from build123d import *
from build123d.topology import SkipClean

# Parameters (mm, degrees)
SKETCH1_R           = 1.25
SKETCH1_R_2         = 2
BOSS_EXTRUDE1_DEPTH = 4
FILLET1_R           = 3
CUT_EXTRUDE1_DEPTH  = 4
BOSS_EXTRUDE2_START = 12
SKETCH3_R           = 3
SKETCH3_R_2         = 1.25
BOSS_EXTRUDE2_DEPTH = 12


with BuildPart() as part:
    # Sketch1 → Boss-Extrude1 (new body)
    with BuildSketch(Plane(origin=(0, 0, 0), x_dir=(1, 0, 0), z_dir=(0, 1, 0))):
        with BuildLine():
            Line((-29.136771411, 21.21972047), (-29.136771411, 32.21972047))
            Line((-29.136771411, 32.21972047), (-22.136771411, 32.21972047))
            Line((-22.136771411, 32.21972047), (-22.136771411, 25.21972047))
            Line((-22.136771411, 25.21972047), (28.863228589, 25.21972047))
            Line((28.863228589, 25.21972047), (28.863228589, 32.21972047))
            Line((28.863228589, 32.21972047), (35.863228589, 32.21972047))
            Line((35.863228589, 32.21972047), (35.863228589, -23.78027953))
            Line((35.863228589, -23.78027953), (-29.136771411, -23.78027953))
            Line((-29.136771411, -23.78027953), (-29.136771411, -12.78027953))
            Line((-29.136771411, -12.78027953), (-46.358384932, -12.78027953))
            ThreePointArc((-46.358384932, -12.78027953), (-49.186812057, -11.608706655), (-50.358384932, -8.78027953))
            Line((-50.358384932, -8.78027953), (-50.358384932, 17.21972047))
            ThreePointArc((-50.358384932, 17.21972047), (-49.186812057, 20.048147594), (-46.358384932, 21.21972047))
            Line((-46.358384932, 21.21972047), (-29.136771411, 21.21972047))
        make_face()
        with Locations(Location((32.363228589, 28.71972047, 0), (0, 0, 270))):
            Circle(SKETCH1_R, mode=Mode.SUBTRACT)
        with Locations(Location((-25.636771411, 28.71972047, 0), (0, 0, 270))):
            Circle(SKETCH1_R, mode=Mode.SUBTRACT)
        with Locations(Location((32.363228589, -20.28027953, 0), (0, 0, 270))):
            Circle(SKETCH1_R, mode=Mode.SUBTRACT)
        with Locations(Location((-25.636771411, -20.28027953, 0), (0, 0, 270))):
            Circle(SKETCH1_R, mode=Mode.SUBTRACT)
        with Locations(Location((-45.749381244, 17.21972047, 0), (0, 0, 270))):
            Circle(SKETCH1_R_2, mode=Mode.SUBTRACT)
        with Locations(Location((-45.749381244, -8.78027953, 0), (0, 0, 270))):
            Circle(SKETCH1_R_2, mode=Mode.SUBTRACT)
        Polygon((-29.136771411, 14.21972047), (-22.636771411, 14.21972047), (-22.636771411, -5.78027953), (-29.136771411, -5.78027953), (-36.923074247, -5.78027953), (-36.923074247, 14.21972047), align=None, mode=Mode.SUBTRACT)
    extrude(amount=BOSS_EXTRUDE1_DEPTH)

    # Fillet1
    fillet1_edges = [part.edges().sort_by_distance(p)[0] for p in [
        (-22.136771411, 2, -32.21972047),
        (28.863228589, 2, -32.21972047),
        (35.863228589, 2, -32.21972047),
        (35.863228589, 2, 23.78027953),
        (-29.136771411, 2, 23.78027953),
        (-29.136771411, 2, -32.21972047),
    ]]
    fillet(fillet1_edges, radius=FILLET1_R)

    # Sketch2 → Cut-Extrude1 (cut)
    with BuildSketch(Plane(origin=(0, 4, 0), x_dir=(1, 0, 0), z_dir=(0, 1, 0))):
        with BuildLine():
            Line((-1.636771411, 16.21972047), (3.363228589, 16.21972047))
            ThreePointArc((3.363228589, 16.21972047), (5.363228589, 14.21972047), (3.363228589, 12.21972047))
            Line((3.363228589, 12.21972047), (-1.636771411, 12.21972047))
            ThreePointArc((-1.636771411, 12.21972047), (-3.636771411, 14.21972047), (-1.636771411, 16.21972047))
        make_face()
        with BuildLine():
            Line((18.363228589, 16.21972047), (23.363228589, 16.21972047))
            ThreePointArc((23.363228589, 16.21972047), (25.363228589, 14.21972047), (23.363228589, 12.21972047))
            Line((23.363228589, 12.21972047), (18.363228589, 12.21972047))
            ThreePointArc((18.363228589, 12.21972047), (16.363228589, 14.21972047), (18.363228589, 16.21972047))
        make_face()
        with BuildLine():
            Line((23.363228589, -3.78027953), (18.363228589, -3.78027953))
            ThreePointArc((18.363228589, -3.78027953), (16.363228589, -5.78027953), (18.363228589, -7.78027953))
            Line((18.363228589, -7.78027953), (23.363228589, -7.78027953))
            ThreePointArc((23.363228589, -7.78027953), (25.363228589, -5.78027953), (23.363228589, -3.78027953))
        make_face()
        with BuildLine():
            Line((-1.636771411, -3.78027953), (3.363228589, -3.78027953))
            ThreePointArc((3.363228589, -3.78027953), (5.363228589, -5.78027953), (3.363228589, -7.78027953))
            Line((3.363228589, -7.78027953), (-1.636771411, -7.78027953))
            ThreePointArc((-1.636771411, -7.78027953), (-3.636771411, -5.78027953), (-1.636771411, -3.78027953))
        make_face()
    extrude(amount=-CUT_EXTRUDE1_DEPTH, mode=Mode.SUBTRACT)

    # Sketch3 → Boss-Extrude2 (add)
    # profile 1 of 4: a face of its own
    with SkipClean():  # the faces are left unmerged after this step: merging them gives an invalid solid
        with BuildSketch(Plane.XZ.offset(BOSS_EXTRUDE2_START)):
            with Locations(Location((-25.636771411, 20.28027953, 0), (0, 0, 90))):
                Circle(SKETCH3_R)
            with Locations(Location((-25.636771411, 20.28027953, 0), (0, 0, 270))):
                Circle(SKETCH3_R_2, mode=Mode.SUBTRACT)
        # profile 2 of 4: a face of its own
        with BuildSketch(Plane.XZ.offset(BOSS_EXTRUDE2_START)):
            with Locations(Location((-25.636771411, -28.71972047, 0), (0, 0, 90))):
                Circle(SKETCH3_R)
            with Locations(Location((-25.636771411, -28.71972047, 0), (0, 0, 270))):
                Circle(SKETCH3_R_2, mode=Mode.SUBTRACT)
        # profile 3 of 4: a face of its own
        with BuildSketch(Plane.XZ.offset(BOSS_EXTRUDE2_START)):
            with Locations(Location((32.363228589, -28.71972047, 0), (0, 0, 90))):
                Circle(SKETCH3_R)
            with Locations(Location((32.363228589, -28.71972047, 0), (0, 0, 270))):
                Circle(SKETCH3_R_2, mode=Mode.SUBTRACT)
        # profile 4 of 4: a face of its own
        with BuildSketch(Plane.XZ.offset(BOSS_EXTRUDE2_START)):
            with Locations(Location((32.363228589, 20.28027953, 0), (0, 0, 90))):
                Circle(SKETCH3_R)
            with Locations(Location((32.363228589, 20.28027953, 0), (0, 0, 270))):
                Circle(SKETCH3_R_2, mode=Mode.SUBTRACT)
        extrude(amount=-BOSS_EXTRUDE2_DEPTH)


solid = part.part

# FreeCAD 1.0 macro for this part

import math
import FreeCAD as App
import Part
import Sketcher
from FreeCAD import Vector
Q = App.Units.Quantity


def edges_at(feature, points):
    """Names of the edges that pass closest to the given points."""
    edges = feature.Shape.Edges
    near = lambda p: min(range(len(edges)), key=lambda i: edges[i].distToShape(Part.Vertex(*p))[0])
    return sorted({f"Edge{near(p) + 1}" for p in points})


def add_polygon(sketch, points):
    """Adds a closed chain of lines whose ends are joined by coincident constraints."""
    first, n = sketch.GeometryCount, len(points)
    for a, b in zip(points, points[1:] + points[:1]):
        sketch.addGeometry(Part.LineSegment(App.Vector(*a, 0), App.Vector(*b, 0)), False)
    for i in range(n):
        sketch.addConstraint(Sketcher.Constraint("Coincident", first + i, 2, first + (i + 1) % n, 1))

doc = App.newDocument("Part")
body = doc.addObject("PartDesign::Body", "Body")

sketch1 = body.newObject("Sketcher::SketchObject", "Sketch")
sketch1.AttachmentSupport = (doc.getObject("XZ_Plane"), [""])
sketch1.MapMode = "FlatFace"
sketch1.addGeometry(Part.LineSegment(Vector(-29.136771, -32.21972, 0), Vector(-29.136771, -21.21972, 0)), False)
sketch1.addGeometry(Part.LineSegment(Vector(-29.136771, -21.21972, 0), Vector(-46.358385, -21.21972, 0)), False)
sketch1.addGeometry(Part.ArcOfCircle(Part.Circle(Vector(-46.358385, -17.21972, 0), Vector(0, 0, 1), 4), math.radians(-180), math.radians(-90)), False)
sketch1.addGeometry(Part.LineSegment(Vector(-50.358385, -17.21972, 0), Vector(-50.358385, 8.78028, 0)), False)
sketch1.addGeometry(Part.ArcOfCircle(Part.Circle(Vector(-46.358385, 8.78028, 0), Vector(0, 0, 1), 4), math.radians(90), math.radians(180)), False)
sketch1.addGeometry(Part.LineSegment(Vector(-46.358385, 12.78028, 0), Vector(-29.136771, 12.78028, 0)), False)
sketch1.addGeometry(Part.LineSegment(Vector(-29.136771, 12.78028, 0), Vector(-29.136771, 23.78028, 0)), False)
sketch1.addGeometry(Part.LineSegment(Vector(-29.136771, 23.78028, 0), Vector(35.863229, 23.78028, 0)), False)
sketch1.addGeometry(Part.LineSegment(Vector(35.863229, 23.78028, 0), Vector(35.863229, -32.21972, 0)), False)
sketch1.addGeometry(Part.LineSegment(Vector(35.863229, -32.21972, 0), Vector(28.863229, -32.21972, 0)), False)
sketch1.addGeometry(Part.LineSegment(Vector(28.863229, -32.21972, 0), Vector(28.863229, -25.21972, 0)), False)
sketch1.addGeometry(Part.LineSegment(Vector(28.863229, -25.21972, 0), Vector(-22.136771, -25.21972, 0)), False)
sketch1.addGeometry(Part.LineSegment(Vector(-22.136771, -25.21972, 0), Vector(-22.136771, -32.21972, 0)), False)
sketch1.addGeometry(Part.LineSegment(Vector(-22.136771, -32.21972, 0), Vector(-29.136771, -32.21972, 0)), False)
sketch1.addGeometry(Part.Circle(Vector(32.363229, 20.28028, 0), Vector(0, 0, 1), 1.25), False)
sketch1.addGeometry(Part.Circle(Vector(-25.636771, 20.28028, 0), Vector(0, 0, 1), 1.25), False)
sketch1.addGeometry(Part.Circle(Vector(-45.749381, 8.78028, 0), Vector(0, 0, 1), 2), False)
add_polygon(sketch1, [(-22.636771, -14.21972), (-22.636771, 5.78028), (-36.923074, 5.78028), (-36.923074, -14.21972)])
sketch1.addGeometry(Part.Circle(Vector(32.363229, -28.71972, 0), Vector(0, 0, 1), 1.25), False)
sketch1.addGeometry(Part.Circle(Vector(-25.636771, -28.71972, 0), Vector(0, 0, 1), 1.25), False)
sketch1.addGeometry(Part.Circle(Vector(-45.749381, -17.21972, 0), Vector(0, 0, 1), 2), False)
sketch1.addConstraint([
    Sketcher.Constraint("Coincident", 0, 2, 1, 1),
    Sketcher.Constraint("Tangent", 1, 2, 2, 2),
    Sketcher.Constraint("Tangent", 2, 1, 3, 1),
    Sketcher.Constraint("Tangent", 3, 2, 4, 2),
    Sketcher.Constraint("Tangent", 4, 1, 5, 1),
    Sketcher.Constraint("Coincident", 5, 2, 6, 1),
    Sketcher.Constraint("Coincident", 6, 2, 7, 1),
    Sketcher.Constraint("Coincident", 7, 2, 8, 1),
    Sketcher.Constraint("Coincident", 8, 2, 9, 1),
    Sketcher.Constraint("Coincident", 9, 2, 10, 1),
    Sketcher.Constraint("Coincident", 10, 2, 11, 1),
    Sketcher.Constraint("Coincident", 11, 2, 12, 1),
    Sketcher.Constraint("Coincident", 12, 2, 13, 1),
    Sketcher.Constraint("Coincident", 13, 2, 0, 1),
    Sketcher.Constraint("Vertical", 0),
    Sketcher.Constraint("Horizontal", 1),
    Sketcher.Constraint("Vertical", 3),
    Sketcher.Constraint("Horizontal", 5),
    Sketcher.Constraint("Vertical", 6),
    Sketcher.Constraint("Horizontal", 7),
    Sketcher.Constraint("Vertical", 8),
    Sketcher.Constraint("Horizontal", 9),
    Sketcher.Constraint("Vertical", 10),
    Sketcher.Constraint("Horizontal", 11),
    Sketcher.Constraint("Vertical", 12),
    Sketcher.Constraint("Horizontal", 13),
    Sketcher.Constraint("Vertical", 17),
    Sketcher.Constraint("Horizontal", 18),
    Sketcher.Constraint("Vertical", 19),
    Sketcher.Constraint("Horizontal", 20),
    Sketcher.Constraint("Equal", 2, 4),
    Sketcher.Constraint("Equal", 14, 15),
    Sketcher.Constraint("Equal", 15, 21),
    Sketcher.Constraint("Equal", 21, 22),
    Sketcher.Constraint("Equal", 16, 23),
    Sketcher.Constraint("Horizontal", 14, 3, 15, 3),
    Sketcher.Constraint("Horizontal", 4, 3, 16, 3),
    Sketcher.Constraint("Horizontal", 21, 3, 22, 3),
    Sketcher.Constraint("Horizontal", 2, 3, 23, 3),
    Sketcher.Constraint("Horizontal", 9, 2, 12, 2),
    Sketcher.Constraint("Vertical", 14, 3, 21, 3),
    Sketcher.Constraint("Vertical", 15, 3, 22, 3),
    Sketcher.Constraint("Vertical", 16, 3, 23, 3),
    Sketcher.Constraint("Vertical", 0, 2, 5, 2),
    Sketcher.Constraint("Equal", 9, 13),
    Sketcher.Constraint("Equal", 0, 6),
    Sketcher.Constraint("Equal", 13, 10),
    Sketcher.Constraint("Diameter", 16, Q("4 mm")),
    Sketcher.Constraint("Radius", 2, Q("4 mm")),
    Sketcher.Constraint("Diameter", 14, Q("2.5 mm")),
    Sketcher.Constraint("DistanceX", 7, 1, 7, 2, Q("65 mm")),
    Sketcher.Constraint("DistanceX", 9, 2, 9, 1, Q("7 mm")),
    Sketcher.Constraint("DistanceY", 0, 1, 0, 2, Q("11 mm")),
    Sketcher.Constraint("DistanceY", 3, 1, 3, 2, Q("26 mm")),
    Sketcher.Constraint("DistanceY", 17, 1, 17, 2, Q("20 mm")),
    Sketcher.Constraint("DistanceX", 15, 3, 14, 3, Q("58 mm")),
    Sketcher.Constraint("DistanceY", 21, 3, 14, 3, Q("49 mm")),
    Sketcher.Constraint("DistanceY", 17, 2, 5, 2, Q("7 mm")),
    Sketcher.Constraint("DistanceX", 15, 3, 17, 2, Q("3 mm")),
    Sketcher.Constraint("DistanceY", 4, 3, 14, 3, Q("11.5 mm")),
    Sketcher.Constraint("DistanceX", 0, 2, 22, 3, Q("3.5 mm")),
    Sketcher.Constraint("DistanceX", 1, 2, 1, 1, Q("17.221614 mm")),
    Sketcher.Constraint("DistanceX", 18, 2, 18, 1, Q("14.286303 mm")),
    Sketcher.Constraint("DistanceY", 2, 3, -1, 1, Q("17.21972 mm")),
    Sketcher.Constraint("DistanceX", -1, 1, 14, 3, Q("32.363229 mm")),
    Sketcher.Constraint("DistanceX", 16, 3, -1, 1, Q("45.749381 mm")),
])
pad1 = body.newObject("PartDesign::Pad", "Pad")
pad1.Profile = sketch1
pad1.Length = 4
pad1.Reversed = True
doc.recompute()

fillet = body.newObject("PartDesign::Fillet", "Fillet")
fillet.Base = (pad1, edges_at(pad1, [
    (-22.137, 2, -32.22),
    (28.863, 2, -32.22),
    (35.863, 2, -32.22),
    (35.863, 2, 23.78),
    (-29.137, 2, 23.78),
    (-29.137, 2, -32.22),
]))
fillet.Radius = 3

sketch2 = body.newObject("Sketcher::SketchObject", "Sketch001")
sketch2.AttachmentSupport = (doc.getObject("XZ_Plane"), [""])
sketch2.MapMode = "FlatFace"
sketch2.AttachmentOffset = App.Placement(Vector(0, 0, -4), App.Rotation())
sketch2.addGeometry([
    Part.LineSegment(Vector(3.363229, -16.21972, 0), Vector(-1.636771, -16.21972, 0)),
    Part.ArcOfCircle(Part.Circle(Vector(-1.636771, -14.21972, 0), Vector(0, 0, 1), 2), math.radians(90), math.radians(270)),
    Part.LineSegment(Vector(-1.636771, -12.21972, 0), Vector(3.363229, -12.21972, 0)),
    Part.ArcOfCircle(Part.Circle(Vector(3.363229, -14.21972, 0), Vector(0, 0, 1), 2), math.radians(-90), math.radians(90)),
    Part.LineSegment(Vector(23.363229, -16.21972, 0), Vector(18.363229, -16.21972, 0)),
    Part.ArcOfCircle(Part.Circle(Vector(18.363229, -14.21972, 0), Vector(0, 0, 1), 2), math.radians(90), math.radians(270)),
    Part.LineSegment(Vector(18.363229, -12.21972, 0), Vector(23.363229, -12.21972, 0)),
    Part.ArcOfCircle(Part.Circle(Vector(23.363229, -14.21972, 0), Vector(0, 0, 1), 2), math.radians(-90), math.radians(90)),
    Part.LineSegment(Vector(23.363229, 3.78028, 0), Vector(18.363229, 3.78028, 0)),
    Part.ArcOfCircle(Part.Circle(Vector(18.363229, 5.78028, 0), Vector(0, 0, 1), 2), math.radians(90), math.radians(270)),
    Part.LineSegment(Vector(18.363229, 7.78028, 0), Vector(23.363229, 7.78028, 0)),
    Part.ArcOfCircle(Part.Circle(Vector(23.363229, 5.78028, 0), Vector(0, 0, 1), 2), math.radians(-90), math.radians(90)),
    Part.LineSegment(Vector(3.363229, 3.78028, 0), Vector(-1.636771, 3.78028, 0)),
    Part.ArcOfCircle(Part.Circle(Vector(-1.636771, 5.78028, 0), Vector(0, 0, 1), 2), math.radians(90), math.radians(270)),
    Part.LineSegment(Vector(-1.636771, 7.78028, 0), Vector(3.363229, 7.78028, 0)),
    Part.ArcOfCircle(Part.Circle(Vector(3.363229, 5.78028, 0), Vector(0, 0, 1), 2), math.radians(-90), math.radians(90)),
], False)
sketch2.addConstraint([
    Sketcher.Constraint("Tangent", 0, 2, 1, 2),
    Sketcher.Constraint("Tangent", 1, 1, 2, 1),
    Sketcher.Constraint("Tangent", 2, 2, 3, 2),
    Sketcher.Constraint("Tangent", 3, 1, 0, 1),
    Sketcher.Constraint("Tangent", 4, 2, 5, 2),
    Sketcher.Constraint("Tangent", 5, 1, 6, 1),
    Sketcher.Constraint("Tangent", 6, 2, 7, 2),
    Sketcher.Constraint("Tangent", 7, 1, 4, 1),
    Sketcher.Constraint("Tangent", 8, 2, 9, 2),
    Sketcher.Constraint("Tangent", 9, 1, 10, 1),
    Sketcher.Constraint("Tangent", 10, 2, 11, 2),
    Sketcher.Constraint("Tangent", 11, 1, 8, 1),
    Sketcher.Constraint("Tangent", 12, 2, 13, 2),
    Sketcher.Constraint("Tangent", 13, 1, 14, 1),
    Sketcher.Constraint("Tangent", 14, 2, 15, 2),
    Sketcher.Constraint("Tangent", 15, 1, 12, 1),
    Sketcher.Constraint("Horizontal", 0),
    Sketcher.Constraint("Horizontal", 2),
    Sketcher.Constraint("Horizontal", 4),
    Sketcher.Constraint("Horizontal", 6),
    Sketcher.Constraint("Horizontal", 8),
    Sketcher.Constraint("Horizontal", 10),
    Sketcher.Constraint("Horizontal", 12),
    Sketcher.Constraint("Horizontal", 14),
    Sketcher.Constraint("Equal", 3, 5),
    Sketcher.Constraint("Equal", 7, 9),
    Sketcher.Constraint("Equal", 11, 13),
    Sketcher.Constraint("Horizontal", 3, 3, 5, 3),
    Sketcher.Constraint("Horizontal", 11, 3, 13, 3),
    Sketcher.Constraint("Vertical", 5, 3, 9, 3),
    Sketcher.Constraint("Vertical", 7, 3, 11, 3),
    Sketcher.Constraint("Vertical", 1, 3, 13, 3),
    Sketcher.Constraint("Vertical", 3, 3, 15, 3),
    Sketcher.Constraint("Equal", 2, 4),
    Sketcher.Constraint("Radius", 1, Q("2 mm")),
    Sketcher.Constraint("DistanceX", 0, 2, 0, 1, Q("5 mm")),
    Sketcher.Constraint("DistanceX", 3, 3, 5, 3, Q("15 mm")),
    Sketcher.Constraint("DistanceY", 5, 3, 9, 3, Q("20 mm")),
    Sketcher.Constraint("DistanceX", 1, 3, -1, 1, Q("1.636771 mm")),
    Sketcher.Constraint("DistanceY", 1, 3, -1, 1, Q("14.21972 mm")),
])
pocket1 = body.newObject("PartDesign::Pocket", "Pocket")
pocket1.Profile = sketch2
pocket1.Length = 4
pocket1.Reversed = True

sketch3 = body.newObject("Sketcher::SketchObject", "Sketch002")
sketch3.AttachmentSupport = (doc.getObject("XZ_Plane"), [""])
sketch3.MapMode = "FlatFace"
sketch3.AttachmentOffset = App.Placement(Vector(0, 0, 12), App.Rotation())
sketch3.addGeometry([
    Part.Circle(Vector(-25.636771, 20.28028, 0), Vector(0, 0, 1), 3),
    Part.Circle(Vector(-25.636771, 20.28028, 0), Vector(0, 0, 1), 1.25),
    Part.Circle(Vector(-25.636771, -28.71972, 0), Vector(0, 0, 1), 3),
    Part.Circle(Vector(-25.636771, -28.71972, 0), Vector(0, 0, 1), 1.25),
    Part.Circle(Vector(32.363229, -28.71972, 0), Vector(0, 0, 1), 3),
    Part.Circle(Vector(32.363229, -28.71972, 0), Vector(0, 0, 1), 1.25),
    Part.Circle(Vector(32.363229, 20.28028, 0), Vector(0, 0, 1), 3),
    Part.Circle(Vector(32.363229, 20.28028, 0), Vector(0, 0, 1), 1.25),
], False)
sketch3.addConstraint([
    Sketcher.Constraint("Coincident", 1, 3, 0, 3),
    Sketcher.Constraint("Coincident", 3, 3, 2, 3),
    Sketcher.Constraint("Coincident", 5, 3, 4, 3),
    Sketcher.Constraint("Coincident", 7, 3, 6, 3),
    Sketcher.Constraint("Equal", 0, 2),
    Sketcher.Constraint("Equal", 1, 3),
    Sketcher.Constraint("Equal", 2, 4),
    Sketcher.Constraint("Equal", 3, 5),
    Sketcher.Constraint("Equal", 4, 6),
    Sketcher.Constraint("Equal", 5, 7),
    Sketcher.Constraint("Horizontal", 3, 3, 4, 3),
    Sketcher.Constraint("Horizontal", 1, 3, 6, 3),
    Sketcher.Constraint("Vertical", 1, 3, 2, 3),
    Sketcher.Constraint("Vertical", 5, 3, 6, 3),
    Sketcher.Constraint("Diameter", 0, Q("6 mm")),
    Sketcher.Constraint("Diameter", 1, Q("2.5 mm")),
    Sketcher.Constraint("DistanceY", 2, 3, 0, 3, Q("49 mm")),
    Sketcher.Constraint("DistanceX", 2, 3, 4, 3, Q("58 mm")),
    Sketcher.Constraint("DistanceX", 0, 3, -1, 1, Q("25.636771 mm")),
    Sketcher.Constraint("DistanceY", -1, 1, 0, 3, Q("20.28028 mm")),
])
pad2 = body.newObject("PartDesign::Pad", "Pad001")
pad2.Profile = sketch3
pad2.Length = 12
pad2.Reversed = True

doc.recompute()
